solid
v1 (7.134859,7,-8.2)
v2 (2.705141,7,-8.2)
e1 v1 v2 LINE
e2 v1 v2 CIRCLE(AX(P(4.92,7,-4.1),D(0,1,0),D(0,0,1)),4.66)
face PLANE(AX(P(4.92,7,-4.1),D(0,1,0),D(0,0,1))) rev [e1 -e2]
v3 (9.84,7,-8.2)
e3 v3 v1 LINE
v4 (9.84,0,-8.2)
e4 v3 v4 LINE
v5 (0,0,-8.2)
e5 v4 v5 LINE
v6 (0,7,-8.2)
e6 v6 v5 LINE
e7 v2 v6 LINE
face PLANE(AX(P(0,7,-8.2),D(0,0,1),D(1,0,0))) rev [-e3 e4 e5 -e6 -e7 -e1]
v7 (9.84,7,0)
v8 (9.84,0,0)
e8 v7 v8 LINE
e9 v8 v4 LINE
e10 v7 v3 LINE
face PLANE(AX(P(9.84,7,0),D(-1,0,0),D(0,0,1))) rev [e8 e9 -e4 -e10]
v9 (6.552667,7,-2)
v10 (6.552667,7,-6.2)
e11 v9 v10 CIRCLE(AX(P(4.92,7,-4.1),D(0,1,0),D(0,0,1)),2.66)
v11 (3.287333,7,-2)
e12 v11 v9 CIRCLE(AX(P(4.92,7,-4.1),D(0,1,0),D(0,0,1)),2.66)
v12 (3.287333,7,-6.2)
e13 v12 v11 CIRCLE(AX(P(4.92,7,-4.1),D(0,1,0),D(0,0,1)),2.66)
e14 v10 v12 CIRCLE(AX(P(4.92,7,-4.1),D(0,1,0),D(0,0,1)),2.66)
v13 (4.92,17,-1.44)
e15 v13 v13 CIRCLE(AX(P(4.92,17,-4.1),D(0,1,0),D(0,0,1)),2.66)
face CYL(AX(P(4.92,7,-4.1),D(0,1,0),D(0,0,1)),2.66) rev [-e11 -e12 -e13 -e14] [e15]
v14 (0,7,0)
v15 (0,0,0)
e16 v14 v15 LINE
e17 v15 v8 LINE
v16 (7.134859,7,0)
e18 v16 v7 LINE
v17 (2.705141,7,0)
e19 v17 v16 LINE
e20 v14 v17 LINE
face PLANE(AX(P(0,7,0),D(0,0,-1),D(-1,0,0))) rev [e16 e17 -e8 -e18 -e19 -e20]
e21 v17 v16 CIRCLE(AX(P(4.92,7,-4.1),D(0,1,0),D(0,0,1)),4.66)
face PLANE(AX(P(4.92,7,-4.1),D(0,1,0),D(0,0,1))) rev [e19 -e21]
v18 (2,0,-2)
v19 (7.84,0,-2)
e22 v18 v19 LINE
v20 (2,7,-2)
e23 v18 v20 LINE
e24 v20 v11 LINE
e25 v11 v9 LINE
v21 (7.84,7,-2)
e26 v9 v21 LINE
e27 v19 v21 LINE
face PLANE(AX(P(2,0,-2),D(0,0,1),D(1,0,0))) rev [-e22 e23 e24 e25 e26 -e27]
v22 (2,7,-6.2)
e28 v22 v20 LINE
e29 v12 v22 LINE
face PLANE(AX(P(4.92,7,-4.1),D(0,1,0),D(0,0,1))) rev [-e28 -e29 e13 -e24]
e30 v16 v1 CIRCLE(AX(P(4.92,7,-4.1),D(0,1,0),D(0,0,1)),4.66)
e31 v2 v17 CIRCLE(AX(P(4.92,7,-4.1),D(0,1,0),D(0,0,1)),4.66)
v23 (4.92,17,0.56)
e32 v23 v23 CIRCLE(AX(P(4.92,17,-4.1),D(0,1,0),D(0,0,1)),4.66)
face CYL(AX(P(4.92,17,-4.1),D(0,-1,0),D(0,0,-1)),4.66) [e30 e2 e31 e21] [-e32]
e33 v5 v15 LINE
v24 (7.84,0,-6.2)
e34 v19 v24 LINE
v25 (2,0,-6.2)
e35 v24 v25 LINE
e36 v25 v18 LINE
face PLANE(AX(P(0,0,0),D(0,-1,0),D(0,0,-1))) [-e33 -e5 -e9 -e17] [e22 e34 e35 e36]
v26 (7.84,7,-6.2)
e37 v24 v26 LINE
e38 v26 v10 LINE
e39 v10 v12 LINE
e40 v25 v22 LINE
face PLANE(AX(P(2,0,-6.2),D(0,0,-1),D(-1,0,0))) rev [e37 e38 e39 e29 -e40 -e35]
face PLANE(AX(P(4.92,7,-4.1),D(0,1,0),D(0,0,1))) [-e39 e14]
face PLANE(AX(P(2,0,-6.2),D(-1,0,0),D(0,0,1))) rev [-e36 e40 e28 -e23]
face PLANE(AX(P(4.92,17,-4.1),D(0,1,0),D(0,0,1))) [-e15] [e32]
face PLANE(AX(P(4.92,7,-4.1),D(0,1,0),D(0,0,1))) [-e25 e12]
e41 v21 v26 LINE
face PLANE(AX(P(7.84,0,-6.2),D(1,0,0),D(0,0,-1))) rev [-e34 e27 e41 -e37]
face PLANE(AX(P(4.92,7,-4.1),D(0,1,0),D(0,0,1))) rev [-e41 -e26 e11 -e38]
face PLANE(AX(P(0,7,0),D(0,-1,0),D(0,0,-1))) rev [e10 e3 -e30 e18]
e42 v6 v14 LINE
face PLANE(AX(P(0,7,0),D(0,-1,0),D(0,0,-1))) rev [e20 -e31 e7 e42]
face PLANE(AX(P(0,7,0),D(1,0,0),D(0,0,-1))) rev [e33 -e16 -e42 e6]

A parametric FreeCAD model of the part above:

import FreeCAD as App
import Part
import Sketcher

V = App.Vector

doc = App.newDocument("Part")
body = doc.addObject("PartDesign::Body", "Body")

sketch1 = body.newObject("Sketcher::SketchObject", "Sketch")
sketch1.AttachmentSupport = (doc.getObject("XZ_Plane"), [""])
sketch1.MapMode = "FlatFace"
sketch1.addGeometry(Part.LineSegment(V(0, -8.2, 0), V(0, 0, 0)), False)
sketch1.addGeometry(Part.LineSegment(V(0, 0, 0), V(9.84, 0, 0)), False)
sketch1.addGeometry(Part.LineSegment(V(9.84, 0, 0), V(9.84, -8.2, 0)), False)
sketch1.addGeometry(Part.LineSegment(V(9.84, -8.2, 0), V(0, -8.2, 0)), False)
sketch1.addConstraint(Sketcher.Constraint("Coincident", 0, 2, 1, 1))
sketch1.addConstraint(Sketcher.Constraint("Coincident", 1, 2, 2, 1))
sketch1.addConstraint(Sketcher.Constraint("Coincident", 2, 2, 3, 1))
sketch1.addConstraint(Sketcher.Constraint("Coincident", 3, 2, 0, 1))
sketch1.addConstraint(Sketcher.Constraint("Vertical", 0))
sketch1.addConstraint(Sketcher.Constraint("Horizontal", 1))
sketch1.addConstraint(Sketcher.Constraint("Vertical", 2))
sketch1.addConstraint(Sketcher.Constraint("Horizontal", 3))
sketch1.addConstraint(Sketcher.Constraint("Coincident", 0, 2, -1, 1))
sketch1.addConstraint(Sketcher.Constraint("DistanceY", 0, 1, 0, 2, 8.2))
sketch1.addConstraint(Sketcher.Constraint("DistanceX", 1, 1, 1, 2, 9.84))
pad1 = body.newObject("PartDesign::Pad", "Pad")
pad1.Profile = sketch1
pad1.Length = 7
pad1.Reversed = True

sketch2 = body.newObject("Sketcher::SketchObject", "Sketch001")
sketch2.AttachmentSupport = (doc.getObject("XZ_Plane"), [""])
sketch2.MapMode = "FlatFace"
sketch2.AttachmentOffset = App.Placement(V(0, 0, -7), App.Rotation())
sketch2.addGeometry(Part.LineSegment(V(2, -6.2, 0), V(2, -2, 0)), False)
sketch2.addGeometry(Part.LineSegment(V(2, -2, 0), V(7.84, -2, 0)), False)
sketch2.addGeometry(Part.LineSegment(V(7.84, -2, 0), V(7.84, -6.2, 0)), False)
sketch2.addGeometry(Part.LineSegment(V(7.84, -6.2, 0), V(2, -6.2, 0)), False)
sketch2.addConstraint(Sketcher.Constraint("Coincident", 0, 2, 1, 1))
sketch2.addConstraint(Sketcher.Constraint("Coincident", 1, 2, 2, 1))
sketch2.addConstraint(Sketcher.Constraint("Coincident", 2, 2, 3, 1))
sketch2.addConstraint(Sketcher.Constraint("Coincident", 3, 2, 0, 1))
sketch2.addConstraint(Sketcher.Constraint("Vertical", 0))
sketch2.addConstraint(Sketcher.Constraint("Horizontal", 1))
sketch2.addConstraint(Sketcher.Constraint("Vertical", 2))
sketch2.addConstraint(Sketcher.Constraint("Horizontal", 3))
sketch2.addConstraint(Sketcher.Constraint("DistanceY", 0, 1, 0, 2, 4.2))
sketch2.addConstraint(Sketcher.Constraint("DistanceX", -1, 1, 0, 2, 2.0))
sketch2.addConstraint(Sketcher.Constraint("DistanceY", 0, 2, -1, 1, 2.0))
sketch2.addConstraint(Sketcher.Constraint("DistanceX", 1, 1, 1, 2, 5.84))
pocket1 = body.newObject("PartDesign::Pocket", "Pocket")
pocket1.Profile = sketch2
pocket1.Type = "ThroughAll"
pocket1.Reversed = True

sketch3 = body.newObject("Sketcher::SketchObject", "Sketch002")
sketch3.AttachmentSupport = (doc.getObject("XZ_Plane"), [""])
sketch3.MapMode = "FlatFace"
sketch3.AttachmentOffset = App.Placement(V(0, 0, -7), App.Rotation())
sketch3.addGeometry(Part.Circle(V(4.92, -4.1, 0), V(0, 0, 1), 4.66), False)
sketch3.addConstraint(Sketcher.Constraint("Diameter", 0, 9.32))
sketch3.addConstraint(Sketcher.Constraint("DistanceY", 0, 3, -1, 1, 4.1))
sketch3.addConstraint(Sketcher.Constraint("DistanceX", -1, 1, 0, 3, 4.92))
pad2 = body.newObject("PartDesign::Pad", "Pad001")
pad2.Profile = sketch3
pad2.Length = 10
pad2.Reversed = True

sketch4 = body.newObject("Sketcher::SketchObject", "Sketch003")
sketch4.AttachmentSupport = (doc.getObject("XZ_Plane"), [""])
sketch4.MapMode = "FlatFace"
sketch4.AttachmentOffset = App.Placement(V(0, 0, -17), App.Rotation())
sketch4.addGeometry(Part.Circle(V(4.92, -4.1, 0), V(0, 0, 1), 2.66), False)
sketch4.addConstraint(Sketcher.Constraint("Diameter", 0, 5.32))
sketch4.addConstraint(Sketcher.Constraint("DistanceY", 0, 3, -1, 1, 4.1))
sketch4.addConstraint(Sketcher.Constraint("DistanceX", -1, 1, 0, 3, 4.92))
pocket2 = body.newObject("PartDesign::Pocket", "Pocket001")
pocket2.Profile = sketch4
pocket2.Length = 10
pocket2.Reversed = True

doc.recompute()
